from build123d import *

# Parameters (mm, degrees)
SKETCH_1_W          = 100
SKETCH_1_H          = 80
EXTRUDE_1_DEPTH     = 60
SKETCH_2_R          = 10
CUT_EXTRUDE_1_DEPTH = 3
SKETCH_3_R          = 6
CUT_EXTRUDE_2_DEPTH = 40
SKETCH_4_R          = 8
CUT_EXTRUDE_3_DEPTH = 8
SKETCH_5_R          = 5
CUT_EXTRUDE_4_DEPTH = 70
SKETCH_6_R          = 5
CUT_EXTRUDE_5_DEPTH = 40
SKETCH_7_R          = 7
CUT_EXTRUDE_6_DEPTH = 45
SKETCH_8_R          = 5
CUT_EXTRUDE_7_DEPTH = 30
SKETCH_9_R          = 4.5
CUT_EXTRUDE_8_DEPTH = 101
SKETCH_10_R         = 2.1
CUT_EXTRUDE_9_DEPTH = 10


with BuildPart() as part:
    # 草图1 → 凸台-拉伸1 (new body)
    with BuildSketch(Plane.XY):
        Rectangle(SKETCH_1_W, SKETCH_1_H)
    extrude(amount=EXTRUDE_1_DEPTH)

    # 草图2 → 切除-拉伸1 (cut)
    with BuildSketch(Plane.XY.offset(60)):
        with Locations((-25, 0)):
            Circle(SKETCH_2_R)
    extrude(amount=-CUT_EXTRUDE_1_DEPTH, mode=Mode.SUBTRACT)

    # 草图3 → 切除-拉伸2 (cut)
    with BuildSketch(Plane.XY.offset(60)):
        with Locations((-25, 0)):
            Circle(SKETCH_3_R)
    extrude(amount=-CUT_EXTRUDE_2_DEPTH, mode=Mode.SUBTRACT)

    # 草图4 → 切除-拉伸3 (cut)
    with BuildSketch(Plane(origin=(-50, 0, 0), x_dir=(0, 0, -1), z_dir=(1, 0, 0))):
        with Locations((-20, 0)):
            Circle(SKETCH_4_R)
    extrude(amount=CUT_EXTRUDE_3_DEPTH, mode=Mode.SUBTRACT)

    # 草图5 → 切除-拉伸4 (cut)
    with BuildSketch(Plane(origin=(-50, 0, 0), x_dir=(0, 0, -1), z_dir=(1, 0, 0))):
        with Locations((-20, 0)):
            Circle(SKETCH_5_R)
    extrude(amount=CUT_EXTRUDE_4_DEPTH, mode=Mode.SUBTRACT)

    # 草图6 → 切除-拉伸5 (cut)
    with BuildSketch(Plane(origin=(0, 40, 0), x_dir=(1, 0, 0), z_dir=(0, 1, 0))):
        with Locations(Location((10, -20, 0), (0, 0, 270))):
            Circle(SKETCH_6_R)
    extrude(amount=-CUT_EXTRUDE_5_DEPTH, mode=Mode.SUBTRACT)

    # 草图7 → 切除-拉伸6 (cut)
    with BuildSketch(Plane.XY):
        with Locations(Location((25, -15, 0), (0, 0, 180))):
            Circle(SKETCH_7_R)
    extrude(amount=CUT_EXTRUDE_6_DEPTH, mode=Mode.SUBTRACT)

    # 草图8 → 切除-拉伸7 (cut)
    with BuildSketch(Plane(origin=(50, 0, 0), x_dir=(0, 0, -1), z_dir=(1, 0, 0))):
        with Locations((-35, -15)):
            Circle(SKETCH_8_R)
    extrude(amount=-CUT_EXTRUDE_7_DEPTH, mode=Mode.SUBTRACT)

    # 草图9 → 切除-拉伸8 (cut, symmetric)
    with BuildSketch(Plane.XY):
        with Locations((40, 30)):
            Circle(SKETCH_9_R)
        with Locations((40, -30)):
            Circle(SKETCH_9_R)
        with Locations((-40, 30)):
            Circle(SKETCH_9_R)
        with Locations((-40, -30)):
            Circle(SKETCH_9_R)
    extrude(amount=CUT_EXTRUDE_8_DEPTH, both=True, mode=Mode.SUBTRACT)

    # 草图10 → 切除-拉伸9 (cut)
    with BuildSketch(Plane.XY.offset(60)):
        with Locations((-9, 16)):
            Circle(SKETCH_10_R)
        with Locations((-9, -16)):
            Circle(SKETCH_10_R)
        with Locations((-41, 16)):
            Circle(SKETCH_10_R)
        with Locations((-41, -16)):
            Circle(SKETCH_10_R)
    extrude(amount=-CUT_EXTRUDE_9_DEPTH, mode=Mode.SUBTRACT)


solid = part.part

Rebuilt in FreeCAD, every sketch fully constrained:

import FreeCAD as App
import Part
import Sketcher
from FreeCAD import Vector
Q = App.Units.Quantity

doc = App.newDocument("Part")
body = doc.addObject("PartDesign::Body", "Body")

sketch1 = body.newObject("Sketcher::SketchObject", "Sketch")
sketch1.AttachmentSupport = (doc.getObject("XY_Plane"), [""])
sketch1.MapMode = "FlatFace"
sketch1.addGeometry([
    Part.LineSegment(Vector(-50, 40, 0), Vector(-50, -40, 0)),
    Part.LineSegment(Vector(-50, -40, 0), Vector(50, -40, 0)),
    Part.LineSegment(Vector(50, -40, 0), Vector(50, 40, 0)),
    Part.LineSegment(Vector(50, 40, 0), Vector(-50, 40, 0)),
], False)
sketch1.addConstraint([
    Sketcher.Constraint("Coincident", 0, 2, 1, 1),
    Sketcher.Constraint("Coincident", 1, 2, 2, 1),
    Sketcher.Constraint("Coincident", 2, 2, 3, 1),
    Sketcher.Constraint("Coincident", 3, 2, 0, 1),
    Sketcher.Constraint("Vertical", 0),
    Sketcher.Constraint("Horizontal", 1),
    Sketcher.Constraint("Vertical", 2),
    Sketcher.Constraint("Horizontal", 3),
    Sketcher.Constraint("Symmetric", 0, 2, 2, 2, -1, 1),
    Sketcher.Constraint("DistanceX", 1, 1, 1, 2, Q("100 mm")),
    Sketcher.Constraint("DistanceY", 0, 2, 0, 1, Q("80 mm")),
])
pad1 = body.newObject("PartDesign::Pad", "Pad")
pad1.Profile = sketch1
pad1.Length = 60

sketch2 = body.newObject("Sketcher::SketchObject", "Sketch001")
sketch2.AttachmentSupport = (doc.getObject("XY_Plane"), [""])
sketch2.MapMode = "FlatFace"
sketch2.AttachmentOffset = App.Placement(Vector(0, 0, 60), App.Rotation())
sketch2.addGeometry(Part.Circle(Vector(-25, 0, 0), Vector(0, 0, 1), 10), False)
sketch2.addConstraint([
    Sketcher.Constraint("PointOnObject", 0, 3, -1),
    Sketcher.Constraint("Diameter", 0, Q("20 mm")),
    Sketcher.Constraint("DistanceX", 0, 3, -1, 1, Q("25 mm")),
])
pocket1 = body.newObject("PartDesign::Pocket", "Pocket")
pocket1.Profile = sketch2
pocket1.Length = 3

sketch3 = body.newObject("Sketcher::SketchObject", "Sketch002")
sketch3.AttachmentSupport = (doc.getObject("XY_Plane"), [""])
sketch3.MapMode = "FlatFace"
sketch3.AttachmentOffset = App.Placement(Vector(0, 0, 60), App.Rotation())
sketch3.addGeometry(Part.Circle(Vector(-25, 0, 0), Vector(0, 0, 1), 6), False)
sketch3.addConstraint([
    Sketcher.Constraint("PointOnObject", 0, 3, -1),
    Sketcher.Constraint("Diameter", 0, Q("12 mm")),
    Sketcher.Constraint("DistanceX", 0, 3, -1, 1, Q("25 mm")),
])
pocket2 = body.newObject("PartDesign::Pocket", "Pocket001")
pocket2.Profile = sketch3
pocket2.Length = 40

sketch4 = body.newObject("Sketcher::SketchObject", "Sketch003")
sketch4.AttachmentSupport = (doc.getObject("YZ_Plane"), [""])
sketch4.MapMode = "FlatFace"
sketch4.AttachmentOffset = App.Placement(Vector(0, 0, -50), App.Rotation())
sketch4.addGeometry(Part.Circle(Vector(0, 20, 0), Vector(0, 0, 1), 8), False)
sketch4.addConstraint([
    Sketcher.Constraint("PointOnObject", 0, 3, -2),
    Sketcher.Constraint("Diameter", 0, Q("16 mm")),
    Sketcher.Constraint("DistanceY", -1, 1, 0, 3, Q("20 mm")),
])
pocket3 = body.newObject("PartDesign::Pocket", "Pocket002")
pocket3.Profile = sketch4
pocket3.Length = 8
pocket3.Reversed = True

sketch5 = body.newObject("Sketcher::SketchObject", "Sketch004")
sketch5.AttachmentSupport = (doc.getObject("YZ_Plane"), [""])
sketch5.MapMode = "FlatFace"
sketch5.AttachmentOffset = App.Placement(Vector(0, 0, -50), App.Rotation())
sketch5.addGeometry(Part.Circle(Vector(0, 20, 0), Vector(0, 0, 1), 5), False)
sketch5.addConstraint([
    Sketcher.Constraint("PointOnObject", 0, 3, -2),
    Sketcher.Constraint("Diameter", 0, Q("10 mm")),
    Sketcher.Constraint("DistanceY", -1, 1, 0, 3, Q("20 mm")),
])
pocket4 = body.newObject("PartDesign::Pocket", "Pocket003")
pocket4.Profile = sketch5
pocket4.Length = 70
pocket4.Reversed = True

sketch6 = body.newObject("Sketcher::SketchObject", "Sketch005")
sketch6.AttachmentSupport = (doc.getObject("XZ_Plane"), [""])
sketch6.MapMode = "FlatFace"
sketch6.AttachmentOffset = App.Placement(Vector(0, 0, -40), App.Rotation())
sketch6.addGeometry(Part.Circle(Vector(10, 20, 0), Vector(0, 0, 1), 5), False)
sketch6.addConstraint([
    Sketcher.Constraint("Diameter", 0, Q("10 mm")),
    Sketcher.Constraint("DistanceX", -1, 1, 0, 3, Q("10 mm")),
    Sketcher.Constraint("DistanceY", -1, 1, 0, 3, Q("20 mm")),
])
pocket5 = body.newObject("PartDesign::Pocket", "Pocket004")
pocket5.Profile = sketch6
pocket5.Length = 40
pocket5.Reversed = True

sketch7 = body.newObject("Sketcher::SketchObject", "Sketch006")
sketch7.AttachmentSupport = (doc.getObject("XY_Plane"), [""])
sketch7.MapMode = "FlatFace"
sketch7.addGeometry(Part.Circle(Vector(25, -15, 0), Vector(0, 0, 1), 7), False)
sketch7.addConstraint([
    Sketcher.Constraint("Diameter", 0, Q("14 mm")),
    Sketcher.Constraint("DistanceX", -1, 1, 0, 3, Q("25 mm")),
    Sketcher.Constraint("DistanceY", 0, 3, -1, 1, Q("15 mm")),
])
pocket6 = body.newObject("PartDesign::Pocket", "Pocket005")
pocket6.Profile = sketch7
pocket6.Length = 45
pocket6.Reversed = True

sketch8 = body.newObject("Sketcher::SketchObject", "Sketch007")
sketch8.AttachmentSupport = (doc.getObject("YZ_Plane"), [""])
sketch8.MapMode = "FlatFace"
sketch8.AttachmentOffset = App.Placement(Vector(0, 0, 50), App.Rotation())
sketch8.addGeometry(Part.Circle(Vector(-15, 35, 0), Vector(0, 0, 1), 5), False)
sketch8.addConstraint([
    Sketcher.Constraint("Diameter", 0, Q("10 mm")),
    Sketcher.Constraint("DistanceX", 0, 3, -1, 1, Q("15 mm")),
    Sketcher.Constraint("DistanceY", -1, 1, 0, 3, Q("35 mm")),
])
pocket7 = body.newObject("PartDesign::Pocket", "Pocket006")
pocket7.Profile = sketch8
pocket7.Length = 30

sketch9 = body.newObject("Sketcher::SketchObject", "Sketch008")
sketch9.AttachmentSupport = (doc.getObject("XY_Plane"), [""])
sketch9.MapMode = "FlatFace"
sketch9.addGeometry([
    Part.Circle(Vector(40, 30, 0), Vector(0, 0, 1), 4.5),
    Part.Circle(Vector(40, -30, 0), Vector(0, 0, 1), 4.5),
    Part.Circle(Vector(-40, 30, 0), Vector(0, 0, 1), 4.5),
    Part.Circle(Vector(-40, -30, 0), Vector(0, 0, 1), 4.5),
], False)
sketch9.addConstraint([
    Sketcher.Constraint("Equal", 0, 1),
    Sketcher.Constraint("Equal", 1, 2),
    Sketcher.Constraint("Equal", 2, 3),
    Sketcher.Constraint("Symmetric", 1, 3, 2, 3, -1, 1),
    Sketcher.Constraint("Symmetric", 0, 3, 3, 3, -1, 1),
    Sketcher.Constraint("Symmetric", 0, 3, 2, 3, -2),
    Sketcher.Constraint("Diameter", 0, Q("9 mm")),
    Sketcher.Constraint("DistanceX", -1, 1, 0, 3, Q("40 mm")),
    Sketcher.Constraint("DistanceY", -1, 1, 0, 3, Q("30 mm")),
])
pocket8 = body.newObject("PartDesign::Pocket", "Pocket007")
pocket8.Profile = sketch9
pocket8.Length = 202
pocket8.Midplane = True

sketch10 = body.newObject("Sketcher::SketchObject", "Sketch009")
sketch10.AttachmentSupport = (doc.getObject("XY_Plane"), [""])
sketch10.MapMode = "FlatFace"
sketch10.AttachmentOffset = App.Placement(Vector(0, 0, 60), App.Rotation())
sketch10.addGeometry([
    Part.Circle(Vector(-9, 16, 0), Vector(0, 0, 1), 2.1),
    Part.Circle(Vector(-9, -16, 0), Vector(0, 0, 1), 2.1),
    Part.Circle(Vector(-41, 16, 0), Vector(0, 0, 1), 2.1),
    Part.Circle(Vector(-41, -16, 0), Vector(0, 0, 1), 2.1),
], False)
sketch10.addConstraint([
    Sketcher.Constraint("Equal", 0, 1),
    Sketcher.Constraint("Equal", 1, 2),
    Sketcher.Constraint("Equal", 2, 3),
    Sketcher.Constraint("Symmetric", 0, 3, 1, 3, -1),
    Sketcher.Constraint("Symmetric", 2, 3, 3, 3, -1),
    Sketcher.Constraint("Horizontal", 0, 3, 2, 3),
    Sketcher.Constraint("Diameter", 0, Q("4.2 mm")),
    Sketcher.Constraint("DistanceX", 0, 3, -1, 1, Q("9 mm")),
    Sketcher.Constraint("DistanceY", -1, 1, 0, 3, Q("16 mm")),
    Sketcher.Constraint("DistanceX", 2, 3, -1, 1, Q("41 mm")),
])
pocket9 = body.newObject("PartDesign::Pocket", "Pocket008")
pocket9.Profile = sketch10
pocket9.Length = 10

doc.recompute()
